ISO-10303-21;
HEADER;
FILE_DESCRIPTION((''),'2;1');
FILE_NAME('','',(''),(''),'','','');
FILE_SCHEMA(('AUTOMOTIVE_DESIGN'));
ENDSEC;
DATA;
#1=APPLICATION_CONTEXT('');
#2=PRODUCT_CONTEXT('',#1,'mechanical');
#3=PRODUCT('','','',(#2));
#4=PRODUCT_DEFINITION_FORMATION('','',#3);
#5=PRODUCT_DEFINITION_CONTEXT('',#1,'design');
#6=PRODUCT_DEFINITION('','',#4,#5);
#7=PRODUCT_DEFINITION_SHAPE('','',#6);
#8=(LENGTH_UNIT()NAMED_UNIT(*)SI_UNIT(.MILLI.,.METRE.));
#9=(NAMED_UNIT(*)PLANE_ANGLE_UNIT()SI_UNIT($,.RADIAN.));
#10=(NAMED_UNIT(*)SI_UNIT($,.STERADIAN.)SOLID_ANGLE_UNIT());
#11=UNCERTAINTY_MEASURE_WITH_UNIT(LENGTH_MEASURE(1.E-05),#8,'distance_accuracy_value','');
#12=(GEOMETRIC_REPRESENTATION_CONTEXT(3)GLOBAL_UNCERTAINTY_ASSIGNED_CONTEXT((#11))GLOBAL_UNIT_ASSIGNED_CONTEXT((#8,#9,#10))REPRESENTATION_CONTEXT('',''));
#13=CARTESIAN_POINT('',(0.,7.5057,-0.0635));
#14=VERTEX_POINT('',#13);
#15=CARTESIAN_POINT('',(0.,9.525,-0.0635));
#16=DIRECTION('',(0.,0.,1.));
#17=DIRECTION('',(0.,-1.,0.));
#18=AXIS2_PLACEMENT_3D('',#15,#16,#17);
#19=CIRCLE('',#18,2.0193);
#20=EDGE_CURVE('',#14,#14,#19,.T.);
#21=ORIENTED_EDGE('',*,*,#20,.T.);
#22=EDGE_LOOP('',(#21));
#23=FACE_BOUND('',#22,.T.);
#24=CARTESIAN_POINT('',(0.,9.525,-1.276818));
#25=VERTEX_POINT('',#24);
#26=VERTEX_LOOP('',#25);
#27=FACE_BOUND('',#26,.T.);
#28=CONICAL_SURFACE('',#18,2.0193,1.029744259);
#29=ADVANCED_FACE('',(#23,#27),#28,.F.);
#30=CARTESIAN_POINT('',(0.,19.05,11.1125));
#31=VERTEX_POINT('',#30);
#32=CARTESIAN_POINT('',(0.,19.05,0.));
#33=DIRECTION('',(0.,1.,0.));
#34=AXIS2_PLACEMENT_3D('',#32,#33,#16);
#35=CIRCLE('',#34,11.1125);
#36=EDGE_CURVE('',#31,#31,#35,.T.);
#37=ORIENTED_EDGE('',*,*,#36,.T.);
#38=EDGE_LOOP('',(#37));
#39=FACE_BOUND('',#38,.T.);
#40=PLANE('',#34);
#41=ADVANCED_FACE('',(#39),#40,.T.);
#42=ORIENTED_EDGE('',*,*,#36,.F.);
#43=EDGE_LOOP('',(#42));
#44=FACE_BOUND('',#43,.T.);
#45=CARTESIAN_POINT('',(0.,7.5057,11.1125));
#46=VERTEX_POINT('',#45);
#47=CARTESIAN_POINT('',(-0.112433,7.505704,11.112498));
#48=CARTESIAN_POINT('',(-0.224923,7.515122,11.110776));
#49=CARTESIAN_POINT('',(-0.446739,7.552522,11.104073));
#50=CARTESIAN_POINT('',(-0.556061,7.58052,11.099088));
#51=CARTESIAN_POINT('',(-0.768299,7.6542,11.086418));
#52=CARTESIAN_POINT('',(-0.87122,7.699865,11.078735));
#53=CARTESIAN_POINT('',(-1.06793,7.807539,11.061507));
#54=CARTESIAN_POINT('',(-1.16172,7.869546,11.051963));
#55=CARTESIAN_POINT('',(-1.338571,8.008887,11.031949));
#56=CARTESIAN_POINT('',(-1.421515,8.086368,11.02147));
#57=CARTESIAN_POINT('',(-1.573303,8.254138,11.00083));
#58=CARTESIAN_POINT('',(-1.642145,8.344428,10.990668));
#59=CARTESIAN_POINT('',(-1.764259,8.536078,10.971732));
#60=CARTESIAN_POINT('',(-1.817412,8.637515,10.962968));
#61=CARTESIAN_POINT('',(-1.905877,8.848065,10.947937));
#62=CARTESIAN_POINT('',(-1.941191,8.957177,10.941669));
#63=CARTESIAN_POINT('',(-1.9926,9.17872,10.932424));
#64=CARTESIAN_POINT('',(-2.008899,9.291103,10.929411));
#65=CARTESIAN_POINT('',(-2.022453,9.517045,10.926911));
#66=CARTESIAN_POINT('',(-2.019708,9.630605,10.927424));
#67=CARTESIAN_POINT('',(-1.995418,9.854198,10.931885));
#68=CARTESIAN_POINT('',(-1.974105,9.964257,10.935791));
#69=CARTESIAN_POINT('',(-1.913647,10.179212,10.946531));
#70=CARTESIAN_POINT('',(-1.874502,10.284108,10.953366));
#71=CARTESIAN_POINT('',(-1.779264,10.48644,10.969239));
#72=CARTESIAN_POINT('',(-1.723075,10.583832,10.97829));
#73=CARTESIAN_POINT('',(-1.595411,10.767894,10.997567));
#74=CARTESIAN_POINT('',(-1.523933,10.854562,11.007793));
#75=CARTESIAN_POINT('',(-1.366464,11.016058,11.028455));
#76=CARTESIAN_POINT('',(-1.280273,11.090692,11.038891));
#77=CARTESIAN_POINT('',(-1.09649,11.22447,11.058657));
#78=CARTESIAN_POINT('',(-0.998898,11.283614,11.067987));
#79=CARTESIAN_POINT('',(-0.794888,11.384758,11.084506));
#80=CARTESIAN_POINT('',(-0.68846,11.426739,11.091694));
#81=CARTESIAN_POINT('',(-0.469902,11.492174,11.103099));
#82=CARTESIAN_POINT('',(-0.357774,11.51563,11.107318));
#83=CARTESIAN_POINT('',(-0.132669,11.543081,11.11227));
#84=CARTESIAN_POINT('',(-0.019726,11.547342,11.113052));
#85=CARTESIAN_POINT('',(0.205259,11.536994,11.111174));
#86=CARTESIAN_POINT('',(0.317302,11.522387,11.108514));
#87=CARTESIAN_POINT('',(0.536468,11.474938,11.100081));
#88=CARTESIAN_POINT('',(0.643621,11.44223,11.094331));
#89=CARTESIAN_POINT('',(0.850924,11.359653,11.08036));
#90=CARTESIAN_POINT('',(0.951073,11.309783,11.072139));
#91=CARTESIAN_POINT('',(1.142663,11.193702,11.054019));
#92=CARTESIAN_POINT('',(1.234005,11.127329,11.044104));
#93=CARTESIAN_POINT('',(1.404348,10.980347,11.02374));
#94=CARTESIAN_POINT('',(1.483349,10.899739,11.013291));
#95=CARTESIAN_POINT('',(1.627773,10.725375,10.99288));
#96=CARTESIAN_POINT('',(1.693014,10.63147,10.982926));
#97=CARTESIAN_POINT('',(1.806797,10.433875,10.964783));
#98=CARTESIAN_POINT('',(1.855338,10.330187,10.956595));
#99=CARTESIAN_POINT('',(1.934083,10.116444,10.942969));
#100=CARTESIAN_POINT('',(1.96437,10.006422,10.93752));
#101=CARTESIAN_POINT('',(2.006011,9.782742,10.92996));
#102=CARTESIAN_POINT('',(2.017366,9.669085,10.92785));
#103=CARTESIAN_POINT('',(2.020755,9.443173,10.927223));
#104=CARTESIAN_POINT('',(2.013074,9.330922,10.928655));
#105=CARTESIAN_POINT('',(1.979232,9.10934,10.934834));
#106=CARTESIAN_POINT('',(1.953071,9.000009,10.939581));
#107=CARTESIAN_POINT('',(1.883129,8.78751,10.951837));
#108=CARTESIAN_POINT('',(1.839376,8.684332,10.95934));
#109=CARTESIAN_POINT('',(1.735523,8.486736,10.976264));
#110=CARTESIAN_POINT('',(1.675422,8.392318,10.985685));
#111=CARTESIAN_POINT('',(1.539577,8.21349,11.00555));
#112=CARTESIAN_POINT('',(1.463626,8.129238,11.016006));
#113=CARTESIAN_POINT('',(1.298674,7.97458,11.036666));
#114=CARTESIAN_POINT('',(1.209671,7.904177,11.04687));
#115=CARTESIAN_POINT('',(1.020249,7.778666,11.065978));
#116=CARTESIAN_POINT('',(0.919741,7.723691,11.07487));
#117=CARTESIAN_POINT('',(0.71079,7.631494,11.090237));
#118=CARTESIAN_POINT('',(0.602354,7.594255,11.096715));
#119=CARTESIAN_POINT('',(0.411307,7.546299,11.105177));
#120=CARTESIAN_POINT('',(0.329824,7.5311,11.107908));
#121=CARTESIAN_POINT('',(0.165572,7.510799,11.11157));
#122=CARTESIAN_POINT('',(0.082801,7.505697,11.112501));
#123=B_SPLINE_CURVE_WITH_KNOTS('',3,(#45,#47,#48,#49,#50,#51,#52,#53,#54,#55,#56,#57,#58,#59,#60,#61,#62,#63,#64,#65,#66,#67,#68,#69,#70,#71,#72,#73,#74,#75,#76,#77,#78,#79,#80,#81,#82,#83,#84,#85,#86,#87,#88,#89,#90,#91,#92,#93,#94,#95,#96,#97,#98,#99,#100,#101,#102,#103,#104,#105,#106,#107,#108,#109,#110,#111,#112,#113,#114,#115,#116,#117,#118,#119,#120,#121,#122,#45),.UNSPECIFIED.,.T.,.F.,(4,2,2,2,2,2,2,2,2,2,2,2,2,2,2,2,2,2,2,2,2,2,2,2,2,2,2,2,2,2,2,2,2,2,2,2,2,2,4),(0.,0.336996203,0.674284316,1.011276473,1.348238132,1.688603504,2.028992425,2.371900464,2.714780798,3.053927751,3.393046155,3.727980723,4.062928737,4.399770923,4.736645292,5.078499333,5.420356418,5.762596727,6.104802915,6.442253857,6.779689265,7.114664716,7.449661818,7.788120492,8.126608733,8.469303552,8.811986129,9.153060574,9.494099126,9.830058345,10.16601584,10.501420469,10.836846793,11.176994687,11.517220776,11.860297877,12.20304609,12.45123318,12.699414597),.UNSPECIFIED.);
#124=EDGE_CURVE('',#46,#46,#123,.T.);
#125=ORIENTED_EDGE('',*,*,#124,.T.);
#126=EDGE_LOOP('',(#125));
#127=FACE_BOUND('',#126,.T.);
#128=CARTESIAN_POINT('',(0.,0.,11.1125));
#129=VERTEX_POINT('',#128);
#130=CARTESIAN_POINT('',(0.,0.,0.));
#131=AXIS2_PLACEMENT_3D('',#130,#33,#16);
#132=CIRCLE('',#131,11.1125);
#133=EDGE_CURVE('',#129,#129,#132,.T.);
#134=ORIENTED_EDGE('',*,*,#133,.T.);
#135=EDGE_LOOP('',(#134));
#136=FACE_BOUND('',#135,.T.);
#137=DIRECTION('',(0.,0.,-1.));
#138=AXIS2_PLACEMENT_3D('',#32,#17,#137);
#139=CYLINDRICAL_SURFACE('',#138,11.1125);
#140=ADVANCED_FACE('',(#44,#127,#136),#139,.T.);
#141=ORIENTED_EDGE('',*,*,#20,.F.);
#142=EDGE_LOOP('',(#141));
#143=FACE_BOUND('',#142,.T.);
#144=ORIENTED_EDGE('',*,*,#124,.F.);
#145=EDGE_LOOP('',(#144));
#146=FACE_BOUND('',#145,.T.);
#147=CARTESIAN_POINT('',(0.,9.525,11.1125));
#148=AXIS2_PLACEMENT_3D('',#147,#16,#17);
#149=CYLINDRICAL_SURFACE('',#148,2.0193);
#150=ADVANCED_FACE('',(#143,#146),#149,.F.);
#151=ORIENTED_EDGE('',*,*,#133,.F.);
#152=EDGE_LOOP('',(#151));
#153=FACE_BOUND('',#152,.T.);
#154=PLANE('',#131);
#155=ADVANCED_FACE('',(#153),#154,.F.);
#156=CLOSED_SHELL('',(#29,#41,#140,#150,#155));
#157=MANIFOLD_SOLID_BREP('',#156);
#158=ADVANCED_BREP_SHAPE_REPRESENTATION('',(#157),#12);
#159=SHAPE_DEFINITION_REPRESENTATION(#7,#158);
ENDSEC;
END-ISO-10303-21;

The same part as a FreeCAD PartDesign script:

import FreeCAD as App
import Part
import Sketcher

V = App.Vector
Q = App.Units.Quantity

doc = App.newDocument("Part")
body = doc.addObject("PartDesign::Body", "Body")

sketch1 = doc.addObject("Sketcher::SketchObject", "Sketch")
body.addObject(sketch1)
sketch1.AttachmentSupport = (doc.XZ_Plane, [""])
sketch1.MapMode = "FlatFace"
sketch1.addGeometry(Part.Circle(V(0, 0, 0), V(0, 0, 1), 11.1125), False)
sketch1.addConstraint([
    Sketcher.Constraint("Coincident", 0, 3, -1, 1),
    Sketcher.Constraint("Diameter", 0, Q("0.875 in")),
])
pad1 = doc.addObject("PartDesign::Pad", "Pad")
body.addObject(pad1)
pad1.Profile = sketch1
pad1.Length = Q("0.75 in")
pad1.Reversed = True

sketch2 = doc.addObject("Sketcher::SketchObject", "Sketch001")
body.addObject(sketch2)
sketch2.AttachmentSupport = (doc.XY_Plane, [""])
sketch2.MapMode = "FlatFace"
sketch2.AttachmentOffset = App.Placement(V(0, 0, 0.4375 * 25.4), App.Rotation())
sketch2.addGeometry(Part.Circle(V(0, 9.525, 0), V(0, 0, 1), 2.0193), False)
sketch2.addConstraint([
    Sketcher.Constraint("PointOnObject", 0, 3, -2),
    Sketcher.Constraint("Diameter", 0, Q("0.159 in")),
    Sketcher.Constraint("DistanceY", -1, 1, 0, 3, Q("0.375 in")),
])
doc.recompute()
hole = doc.addObject("PartDesign::Hole", "Hole")
body.addObject(hole)
hole.Profile = sketch2
hole.ThreadType = "None"
hole.Diameter = Q("0.159 in")
hole.DepthType = "Dimension"
hole.Depth = Q("0.44 in")
hole.DrillPoint = "Angled"
hole.DrillPointAngle = 118

doc.recompute()
